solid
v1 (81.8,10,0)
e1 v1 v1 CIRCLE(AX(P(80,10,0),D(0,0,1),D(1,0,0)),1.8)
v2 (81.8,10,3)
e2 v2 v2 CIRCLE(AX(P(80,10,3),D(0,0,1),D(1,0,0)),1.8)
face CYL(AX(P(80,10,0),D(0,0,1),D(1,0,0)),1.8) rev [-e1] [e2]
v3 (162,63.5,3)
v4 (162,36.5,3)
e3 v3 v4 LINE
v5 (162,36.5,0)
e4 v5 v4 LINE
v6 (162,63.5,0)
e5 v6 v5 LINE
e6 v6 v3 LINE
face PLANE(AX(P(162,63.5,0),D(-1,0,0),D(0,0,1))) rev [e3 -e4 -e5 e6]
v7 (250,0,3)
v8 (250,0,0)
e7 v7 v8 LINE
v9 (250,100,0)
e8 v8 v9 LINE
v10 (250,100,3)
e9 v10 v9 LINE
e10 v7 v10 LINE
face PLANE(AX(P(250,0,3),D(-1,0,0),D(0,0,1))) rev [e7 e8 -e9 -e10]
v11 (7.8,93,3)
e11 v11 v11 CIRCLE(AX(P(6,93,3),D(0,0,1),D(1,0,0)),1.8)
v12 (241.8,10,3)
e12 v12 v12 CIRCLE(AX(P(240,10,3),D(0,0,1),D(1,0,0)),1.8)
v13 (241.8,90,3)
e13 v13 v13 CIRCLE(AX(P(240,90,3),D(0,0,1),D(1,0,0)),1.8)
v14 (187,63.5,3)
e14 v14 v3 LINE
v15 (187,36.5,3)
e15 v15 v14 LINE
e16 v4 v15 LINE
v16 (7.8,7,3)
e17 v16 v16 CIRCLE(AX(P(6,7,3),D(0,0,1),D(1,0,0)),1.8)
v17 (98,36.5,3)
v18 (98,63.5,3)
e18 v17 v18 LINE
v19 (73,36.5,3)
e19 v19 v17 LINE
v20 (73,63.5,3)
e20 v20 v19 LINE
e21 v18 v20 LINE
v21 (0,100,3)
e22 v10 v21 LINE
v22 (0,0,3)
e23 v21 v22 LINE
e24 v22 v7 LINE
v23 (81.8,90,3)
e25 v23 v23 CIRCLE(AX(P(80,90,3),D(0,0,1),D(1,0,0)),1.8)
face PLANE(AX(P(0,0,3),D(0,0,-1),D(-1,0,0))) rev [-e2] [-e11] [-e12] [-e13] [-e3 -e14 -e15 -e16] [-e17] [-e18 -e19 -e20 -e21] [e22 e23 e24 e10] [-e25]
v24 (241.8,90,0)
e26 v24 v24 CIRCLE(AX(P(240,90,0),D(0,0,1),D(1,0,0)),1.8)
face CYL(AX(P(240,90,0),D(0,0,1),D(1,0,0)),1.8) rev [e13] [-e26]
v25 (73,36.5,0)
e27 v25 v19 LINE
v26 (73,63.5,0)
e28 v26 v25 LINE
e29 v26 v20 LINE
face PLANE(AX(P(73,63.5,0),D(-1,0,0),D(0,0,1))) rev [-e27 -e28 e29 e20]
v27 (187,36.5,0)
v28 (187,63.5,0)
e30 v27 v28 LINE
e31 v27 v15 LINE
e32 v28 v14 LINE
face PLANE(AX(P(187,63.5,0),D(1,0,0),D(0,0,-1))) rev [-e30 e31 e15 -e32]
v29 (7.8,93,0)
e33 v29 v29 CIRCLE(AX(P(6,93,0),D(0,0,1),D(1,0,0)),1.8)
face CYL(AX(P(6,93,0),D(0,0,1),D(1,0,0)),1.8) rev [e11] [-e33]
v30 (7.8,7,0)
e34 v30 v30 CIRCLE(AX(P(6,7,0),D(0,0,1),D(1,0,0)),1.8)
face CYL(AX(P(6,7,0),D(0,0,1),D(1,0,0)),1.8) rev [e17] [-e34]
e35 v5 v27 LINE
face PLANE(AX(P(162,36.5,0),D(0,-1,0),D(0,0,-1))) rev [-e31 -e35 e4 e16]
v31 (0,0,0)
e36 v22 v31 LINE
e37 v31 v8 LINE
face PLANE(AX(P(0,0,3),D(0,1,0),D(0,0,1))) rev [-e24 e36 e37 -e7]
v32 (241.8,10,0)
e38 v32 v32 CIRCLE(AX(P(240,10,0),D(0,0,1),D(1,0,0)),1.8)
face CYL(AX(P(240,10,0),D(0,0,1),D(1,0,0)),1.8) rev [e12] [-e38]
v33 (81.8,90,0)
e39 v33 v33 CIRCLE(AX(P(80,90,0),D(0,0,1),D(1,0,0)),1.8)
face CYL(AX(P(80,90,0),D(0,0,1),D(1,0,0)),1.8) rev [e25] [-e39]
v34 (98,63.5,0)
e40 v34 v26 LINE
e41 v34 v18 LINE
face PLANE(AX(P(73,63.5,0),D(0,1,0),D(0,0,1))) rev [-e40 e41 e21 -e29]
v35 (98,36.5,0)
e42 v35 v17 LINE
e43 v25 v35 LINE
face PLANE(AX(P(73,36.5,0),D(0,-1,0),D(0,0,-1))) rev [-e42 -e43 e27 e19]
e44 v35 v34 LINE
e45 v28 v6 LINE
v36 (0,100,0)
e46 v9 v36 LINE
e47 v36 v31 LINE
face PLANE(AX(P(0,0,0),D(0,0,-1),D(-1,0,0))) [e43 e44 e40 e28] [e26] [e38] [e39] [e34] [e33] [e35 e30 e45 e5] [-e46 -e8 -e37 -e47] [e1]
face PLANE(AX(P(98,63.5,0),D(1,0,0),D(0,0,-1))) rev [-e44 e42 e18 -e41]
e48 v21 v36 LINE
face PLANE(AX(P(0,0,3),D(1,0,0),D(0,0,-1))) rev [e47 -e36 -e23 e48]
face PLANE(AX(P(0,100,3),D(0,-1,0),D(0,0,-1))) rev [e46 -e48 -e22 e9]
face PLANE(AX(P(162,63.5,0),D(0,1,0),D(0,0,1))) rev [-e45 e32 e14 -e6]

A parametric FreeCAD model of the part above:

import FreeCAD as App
import Part
import Sketcher
from FreeCAD import Vector


def add_polygon(sketch, points):
    """Adds a closed chain of lines whose ends are joined by coincident constraints."""
    first, n = sketch.GeometryCount, len(points)
    for a, b in zip(points, points[1:] + points[:1]):
        sketch.addGeometry(Part.LineSegment(App.Vector(*a, 0), App.Vector(*b, 0)), False)
    for i in range(n):
        sketch.addConstraint(Sketcher.Constraint("Coincident", first + i, 2, first + (i + 1) % n, 1))

doc = App.newDocument("Part")
body = doc.addObject("PartDesign::Body", "Body")

sketch1 = body.newObject("Sketcher::SketchObject", "Sketch")
sketch1.AttachmentSupport = (doc.getObject("XY_Plane"), [""])
sketch1.MapMode = "FlatFace"
add_polygon(sketch1, [(0, 100), (0, 0), (250, 0), (250, 100)])
sketch1.addConstraint([
    Sketcher.Constraint("Vertical", 0),
    Sketcher.Constraint("Horizontal", 1),
    Sketcher.Constraint("Vertical", 2),
    Sketcher.Constraint("Horizontal", 3),
    Sketcher.Constraint("Coincident", 0, 2, -1, 1),
    Sketcher.Constraint("DistanceX", 1, 1, 1, 2, 250.0),
    Sketcher.Constraint("DistanceY", 0, 2, 0, 1, 100.0),
])
pad1 = body.newObject("PartDesign::Pad", "Pad")
pad1.Profile = sketch1
pad1.Length = 3

sketch2 = body.newObject("Sketcher::SketchObject", "Sketch001")
sketch2.AttachmentSupport = (doc.getObject("XY_Plane"), [""])
sketch2.MapMode = "FlatFace"
sketch2.AttachmentOffset = App.Placement(Vector(0, 0, 3), App.Rotation())
sketch2.addGeometry([
    Part.Circle(Vector(6, 93, 0), Vector(0, 0, 1), 1.8),
    Part.Circle(Vector(80, 90, 0), Vector(0, 0, 1), 1.8),
    Part.Circle(Vector(240, 90, 0), Vector(0, 0, 1), 1.8),
    Part.Circle(Vector(240, 10, 0), Vector(0, 0, 1), 1.8),
    Part.Circle(Vector(80, 10, 0), Vector(0, 0, 1), 1.8),
    Part.Circle(Vector(6, 7, 0), Vector(0, 0, 1), 1.8),
], False)
sketch2.addConstraint([
    Sketcher.Constraint("Equal", 0, 1),
    Sketcher.Constraint("Equal", 1, 2),
    Sketcher.Constraint("Equal", 2, 3),
    Sketcher.Constraint("Equal", 3, 4),
    Sketcher.Constraint("Equal", 4, 5),
    Sketcher.Constraint("Horizontal", 1, 3, 2, 3),
    Sketcher.Constraint("Horizontal", 3, 3, 4, 3),
    Sketcher.Constraint("Vertical", 2, 3, 3, 3),
    Sketcher.Constraint("Vertical", 1, 3, 4, 3),
    Sketcher.Constraint("Vertical", 0, 3, 5, 3),
    Sketcher.Constraint("Diameter", 0, 3.6),
    Sketcher.Constraint("DistanceX", -1, 1, 0, 3, 6.0),
    Sketcher.Constraint("DistanceY", -1, 1, 0, 3, 93.0),
    Sketcher.Constraint("DistanceX", -1, 1, 1, 3, 80.0),
    Sketcher.Constraint("DistanceY", -1, 1, 1, 3, 90.0),
    Sketcher.Constraint("DistanceX", -1, 1, 2, 3, 240.0),
    Sketcher.Constraint("DistanceY", -1, 1, 3, 3, 10.0),
    Sketcher.Constraint("DistanceY", -1, 1, 5, 3, 7.0),
])
pocket1 = body.newObject("PartDesign::Pocket", "Pocket")
pocket1.Profile = sketch2
pocket1.Type = "ThroughAll"

sketch3 = body.newObject("Sketcher::SketchObject", "Sketch002")
sketch3.AttachmentSupport = (doc.getObject("XY_Plane"), [""])
sketch3.MapMode = "FlatFace"
sketch3.AttachmentOffset = App.Placement(Vector(0, 0, 3), App.Rotation())
add_polygon(sketch3, [(73, 64), (73, 36), (98, 36), (98, 64)])
add_polygon(sketch3, [(162, 64), (162, 36), (187, 36), (187, 64)])
sketch3.addConstraint([
    Sketcher.Constraint("Vertical", 0),
    Sketcher.Constraint("Horizontal", 1),
    Sketcher.Constraint("Vertical", 2),
    Sketcher.Constraint("Horizontal", 3),
    Sketcher.Constraint("Vertical", 4),
    Sketcher.Constraint("Horizontal", 5),
    Sketcher.Constraint("Vertical", 6),
    Sketcher.Constraint("Horizontal", 7),
    Sketcher.Constraint("Horizontal", 1, 2, 4, 2),
    Sketcher.Constraint("Horizontal", 3, 2, 6, 2),
    Sketcher.Constraint("Equal", 3, 5),
    Sketcher.Constraint("DistanceX", 1, 1, 1, 2, 25.0),
    Sketcher.Constraint("DistanceY", 0, 2, 0, 1, 27.0),
    Sketcher.Constraint("DistanceX", -1, 1, 0, 2, 73.0),
    Sketcher.Constraint("DistanceX", -1, 1, 4, 2, 162.0),
    Sketcher.Constraint("DistanceY", -1, 1, 0, 2, 36.5),
])
pocket2 = body.newObject("PartDesign::Pocket", "Pocket001")
pocket2.Profile = sketch3
pocket2.Type = "ThroughAll"

doc.recompute()
